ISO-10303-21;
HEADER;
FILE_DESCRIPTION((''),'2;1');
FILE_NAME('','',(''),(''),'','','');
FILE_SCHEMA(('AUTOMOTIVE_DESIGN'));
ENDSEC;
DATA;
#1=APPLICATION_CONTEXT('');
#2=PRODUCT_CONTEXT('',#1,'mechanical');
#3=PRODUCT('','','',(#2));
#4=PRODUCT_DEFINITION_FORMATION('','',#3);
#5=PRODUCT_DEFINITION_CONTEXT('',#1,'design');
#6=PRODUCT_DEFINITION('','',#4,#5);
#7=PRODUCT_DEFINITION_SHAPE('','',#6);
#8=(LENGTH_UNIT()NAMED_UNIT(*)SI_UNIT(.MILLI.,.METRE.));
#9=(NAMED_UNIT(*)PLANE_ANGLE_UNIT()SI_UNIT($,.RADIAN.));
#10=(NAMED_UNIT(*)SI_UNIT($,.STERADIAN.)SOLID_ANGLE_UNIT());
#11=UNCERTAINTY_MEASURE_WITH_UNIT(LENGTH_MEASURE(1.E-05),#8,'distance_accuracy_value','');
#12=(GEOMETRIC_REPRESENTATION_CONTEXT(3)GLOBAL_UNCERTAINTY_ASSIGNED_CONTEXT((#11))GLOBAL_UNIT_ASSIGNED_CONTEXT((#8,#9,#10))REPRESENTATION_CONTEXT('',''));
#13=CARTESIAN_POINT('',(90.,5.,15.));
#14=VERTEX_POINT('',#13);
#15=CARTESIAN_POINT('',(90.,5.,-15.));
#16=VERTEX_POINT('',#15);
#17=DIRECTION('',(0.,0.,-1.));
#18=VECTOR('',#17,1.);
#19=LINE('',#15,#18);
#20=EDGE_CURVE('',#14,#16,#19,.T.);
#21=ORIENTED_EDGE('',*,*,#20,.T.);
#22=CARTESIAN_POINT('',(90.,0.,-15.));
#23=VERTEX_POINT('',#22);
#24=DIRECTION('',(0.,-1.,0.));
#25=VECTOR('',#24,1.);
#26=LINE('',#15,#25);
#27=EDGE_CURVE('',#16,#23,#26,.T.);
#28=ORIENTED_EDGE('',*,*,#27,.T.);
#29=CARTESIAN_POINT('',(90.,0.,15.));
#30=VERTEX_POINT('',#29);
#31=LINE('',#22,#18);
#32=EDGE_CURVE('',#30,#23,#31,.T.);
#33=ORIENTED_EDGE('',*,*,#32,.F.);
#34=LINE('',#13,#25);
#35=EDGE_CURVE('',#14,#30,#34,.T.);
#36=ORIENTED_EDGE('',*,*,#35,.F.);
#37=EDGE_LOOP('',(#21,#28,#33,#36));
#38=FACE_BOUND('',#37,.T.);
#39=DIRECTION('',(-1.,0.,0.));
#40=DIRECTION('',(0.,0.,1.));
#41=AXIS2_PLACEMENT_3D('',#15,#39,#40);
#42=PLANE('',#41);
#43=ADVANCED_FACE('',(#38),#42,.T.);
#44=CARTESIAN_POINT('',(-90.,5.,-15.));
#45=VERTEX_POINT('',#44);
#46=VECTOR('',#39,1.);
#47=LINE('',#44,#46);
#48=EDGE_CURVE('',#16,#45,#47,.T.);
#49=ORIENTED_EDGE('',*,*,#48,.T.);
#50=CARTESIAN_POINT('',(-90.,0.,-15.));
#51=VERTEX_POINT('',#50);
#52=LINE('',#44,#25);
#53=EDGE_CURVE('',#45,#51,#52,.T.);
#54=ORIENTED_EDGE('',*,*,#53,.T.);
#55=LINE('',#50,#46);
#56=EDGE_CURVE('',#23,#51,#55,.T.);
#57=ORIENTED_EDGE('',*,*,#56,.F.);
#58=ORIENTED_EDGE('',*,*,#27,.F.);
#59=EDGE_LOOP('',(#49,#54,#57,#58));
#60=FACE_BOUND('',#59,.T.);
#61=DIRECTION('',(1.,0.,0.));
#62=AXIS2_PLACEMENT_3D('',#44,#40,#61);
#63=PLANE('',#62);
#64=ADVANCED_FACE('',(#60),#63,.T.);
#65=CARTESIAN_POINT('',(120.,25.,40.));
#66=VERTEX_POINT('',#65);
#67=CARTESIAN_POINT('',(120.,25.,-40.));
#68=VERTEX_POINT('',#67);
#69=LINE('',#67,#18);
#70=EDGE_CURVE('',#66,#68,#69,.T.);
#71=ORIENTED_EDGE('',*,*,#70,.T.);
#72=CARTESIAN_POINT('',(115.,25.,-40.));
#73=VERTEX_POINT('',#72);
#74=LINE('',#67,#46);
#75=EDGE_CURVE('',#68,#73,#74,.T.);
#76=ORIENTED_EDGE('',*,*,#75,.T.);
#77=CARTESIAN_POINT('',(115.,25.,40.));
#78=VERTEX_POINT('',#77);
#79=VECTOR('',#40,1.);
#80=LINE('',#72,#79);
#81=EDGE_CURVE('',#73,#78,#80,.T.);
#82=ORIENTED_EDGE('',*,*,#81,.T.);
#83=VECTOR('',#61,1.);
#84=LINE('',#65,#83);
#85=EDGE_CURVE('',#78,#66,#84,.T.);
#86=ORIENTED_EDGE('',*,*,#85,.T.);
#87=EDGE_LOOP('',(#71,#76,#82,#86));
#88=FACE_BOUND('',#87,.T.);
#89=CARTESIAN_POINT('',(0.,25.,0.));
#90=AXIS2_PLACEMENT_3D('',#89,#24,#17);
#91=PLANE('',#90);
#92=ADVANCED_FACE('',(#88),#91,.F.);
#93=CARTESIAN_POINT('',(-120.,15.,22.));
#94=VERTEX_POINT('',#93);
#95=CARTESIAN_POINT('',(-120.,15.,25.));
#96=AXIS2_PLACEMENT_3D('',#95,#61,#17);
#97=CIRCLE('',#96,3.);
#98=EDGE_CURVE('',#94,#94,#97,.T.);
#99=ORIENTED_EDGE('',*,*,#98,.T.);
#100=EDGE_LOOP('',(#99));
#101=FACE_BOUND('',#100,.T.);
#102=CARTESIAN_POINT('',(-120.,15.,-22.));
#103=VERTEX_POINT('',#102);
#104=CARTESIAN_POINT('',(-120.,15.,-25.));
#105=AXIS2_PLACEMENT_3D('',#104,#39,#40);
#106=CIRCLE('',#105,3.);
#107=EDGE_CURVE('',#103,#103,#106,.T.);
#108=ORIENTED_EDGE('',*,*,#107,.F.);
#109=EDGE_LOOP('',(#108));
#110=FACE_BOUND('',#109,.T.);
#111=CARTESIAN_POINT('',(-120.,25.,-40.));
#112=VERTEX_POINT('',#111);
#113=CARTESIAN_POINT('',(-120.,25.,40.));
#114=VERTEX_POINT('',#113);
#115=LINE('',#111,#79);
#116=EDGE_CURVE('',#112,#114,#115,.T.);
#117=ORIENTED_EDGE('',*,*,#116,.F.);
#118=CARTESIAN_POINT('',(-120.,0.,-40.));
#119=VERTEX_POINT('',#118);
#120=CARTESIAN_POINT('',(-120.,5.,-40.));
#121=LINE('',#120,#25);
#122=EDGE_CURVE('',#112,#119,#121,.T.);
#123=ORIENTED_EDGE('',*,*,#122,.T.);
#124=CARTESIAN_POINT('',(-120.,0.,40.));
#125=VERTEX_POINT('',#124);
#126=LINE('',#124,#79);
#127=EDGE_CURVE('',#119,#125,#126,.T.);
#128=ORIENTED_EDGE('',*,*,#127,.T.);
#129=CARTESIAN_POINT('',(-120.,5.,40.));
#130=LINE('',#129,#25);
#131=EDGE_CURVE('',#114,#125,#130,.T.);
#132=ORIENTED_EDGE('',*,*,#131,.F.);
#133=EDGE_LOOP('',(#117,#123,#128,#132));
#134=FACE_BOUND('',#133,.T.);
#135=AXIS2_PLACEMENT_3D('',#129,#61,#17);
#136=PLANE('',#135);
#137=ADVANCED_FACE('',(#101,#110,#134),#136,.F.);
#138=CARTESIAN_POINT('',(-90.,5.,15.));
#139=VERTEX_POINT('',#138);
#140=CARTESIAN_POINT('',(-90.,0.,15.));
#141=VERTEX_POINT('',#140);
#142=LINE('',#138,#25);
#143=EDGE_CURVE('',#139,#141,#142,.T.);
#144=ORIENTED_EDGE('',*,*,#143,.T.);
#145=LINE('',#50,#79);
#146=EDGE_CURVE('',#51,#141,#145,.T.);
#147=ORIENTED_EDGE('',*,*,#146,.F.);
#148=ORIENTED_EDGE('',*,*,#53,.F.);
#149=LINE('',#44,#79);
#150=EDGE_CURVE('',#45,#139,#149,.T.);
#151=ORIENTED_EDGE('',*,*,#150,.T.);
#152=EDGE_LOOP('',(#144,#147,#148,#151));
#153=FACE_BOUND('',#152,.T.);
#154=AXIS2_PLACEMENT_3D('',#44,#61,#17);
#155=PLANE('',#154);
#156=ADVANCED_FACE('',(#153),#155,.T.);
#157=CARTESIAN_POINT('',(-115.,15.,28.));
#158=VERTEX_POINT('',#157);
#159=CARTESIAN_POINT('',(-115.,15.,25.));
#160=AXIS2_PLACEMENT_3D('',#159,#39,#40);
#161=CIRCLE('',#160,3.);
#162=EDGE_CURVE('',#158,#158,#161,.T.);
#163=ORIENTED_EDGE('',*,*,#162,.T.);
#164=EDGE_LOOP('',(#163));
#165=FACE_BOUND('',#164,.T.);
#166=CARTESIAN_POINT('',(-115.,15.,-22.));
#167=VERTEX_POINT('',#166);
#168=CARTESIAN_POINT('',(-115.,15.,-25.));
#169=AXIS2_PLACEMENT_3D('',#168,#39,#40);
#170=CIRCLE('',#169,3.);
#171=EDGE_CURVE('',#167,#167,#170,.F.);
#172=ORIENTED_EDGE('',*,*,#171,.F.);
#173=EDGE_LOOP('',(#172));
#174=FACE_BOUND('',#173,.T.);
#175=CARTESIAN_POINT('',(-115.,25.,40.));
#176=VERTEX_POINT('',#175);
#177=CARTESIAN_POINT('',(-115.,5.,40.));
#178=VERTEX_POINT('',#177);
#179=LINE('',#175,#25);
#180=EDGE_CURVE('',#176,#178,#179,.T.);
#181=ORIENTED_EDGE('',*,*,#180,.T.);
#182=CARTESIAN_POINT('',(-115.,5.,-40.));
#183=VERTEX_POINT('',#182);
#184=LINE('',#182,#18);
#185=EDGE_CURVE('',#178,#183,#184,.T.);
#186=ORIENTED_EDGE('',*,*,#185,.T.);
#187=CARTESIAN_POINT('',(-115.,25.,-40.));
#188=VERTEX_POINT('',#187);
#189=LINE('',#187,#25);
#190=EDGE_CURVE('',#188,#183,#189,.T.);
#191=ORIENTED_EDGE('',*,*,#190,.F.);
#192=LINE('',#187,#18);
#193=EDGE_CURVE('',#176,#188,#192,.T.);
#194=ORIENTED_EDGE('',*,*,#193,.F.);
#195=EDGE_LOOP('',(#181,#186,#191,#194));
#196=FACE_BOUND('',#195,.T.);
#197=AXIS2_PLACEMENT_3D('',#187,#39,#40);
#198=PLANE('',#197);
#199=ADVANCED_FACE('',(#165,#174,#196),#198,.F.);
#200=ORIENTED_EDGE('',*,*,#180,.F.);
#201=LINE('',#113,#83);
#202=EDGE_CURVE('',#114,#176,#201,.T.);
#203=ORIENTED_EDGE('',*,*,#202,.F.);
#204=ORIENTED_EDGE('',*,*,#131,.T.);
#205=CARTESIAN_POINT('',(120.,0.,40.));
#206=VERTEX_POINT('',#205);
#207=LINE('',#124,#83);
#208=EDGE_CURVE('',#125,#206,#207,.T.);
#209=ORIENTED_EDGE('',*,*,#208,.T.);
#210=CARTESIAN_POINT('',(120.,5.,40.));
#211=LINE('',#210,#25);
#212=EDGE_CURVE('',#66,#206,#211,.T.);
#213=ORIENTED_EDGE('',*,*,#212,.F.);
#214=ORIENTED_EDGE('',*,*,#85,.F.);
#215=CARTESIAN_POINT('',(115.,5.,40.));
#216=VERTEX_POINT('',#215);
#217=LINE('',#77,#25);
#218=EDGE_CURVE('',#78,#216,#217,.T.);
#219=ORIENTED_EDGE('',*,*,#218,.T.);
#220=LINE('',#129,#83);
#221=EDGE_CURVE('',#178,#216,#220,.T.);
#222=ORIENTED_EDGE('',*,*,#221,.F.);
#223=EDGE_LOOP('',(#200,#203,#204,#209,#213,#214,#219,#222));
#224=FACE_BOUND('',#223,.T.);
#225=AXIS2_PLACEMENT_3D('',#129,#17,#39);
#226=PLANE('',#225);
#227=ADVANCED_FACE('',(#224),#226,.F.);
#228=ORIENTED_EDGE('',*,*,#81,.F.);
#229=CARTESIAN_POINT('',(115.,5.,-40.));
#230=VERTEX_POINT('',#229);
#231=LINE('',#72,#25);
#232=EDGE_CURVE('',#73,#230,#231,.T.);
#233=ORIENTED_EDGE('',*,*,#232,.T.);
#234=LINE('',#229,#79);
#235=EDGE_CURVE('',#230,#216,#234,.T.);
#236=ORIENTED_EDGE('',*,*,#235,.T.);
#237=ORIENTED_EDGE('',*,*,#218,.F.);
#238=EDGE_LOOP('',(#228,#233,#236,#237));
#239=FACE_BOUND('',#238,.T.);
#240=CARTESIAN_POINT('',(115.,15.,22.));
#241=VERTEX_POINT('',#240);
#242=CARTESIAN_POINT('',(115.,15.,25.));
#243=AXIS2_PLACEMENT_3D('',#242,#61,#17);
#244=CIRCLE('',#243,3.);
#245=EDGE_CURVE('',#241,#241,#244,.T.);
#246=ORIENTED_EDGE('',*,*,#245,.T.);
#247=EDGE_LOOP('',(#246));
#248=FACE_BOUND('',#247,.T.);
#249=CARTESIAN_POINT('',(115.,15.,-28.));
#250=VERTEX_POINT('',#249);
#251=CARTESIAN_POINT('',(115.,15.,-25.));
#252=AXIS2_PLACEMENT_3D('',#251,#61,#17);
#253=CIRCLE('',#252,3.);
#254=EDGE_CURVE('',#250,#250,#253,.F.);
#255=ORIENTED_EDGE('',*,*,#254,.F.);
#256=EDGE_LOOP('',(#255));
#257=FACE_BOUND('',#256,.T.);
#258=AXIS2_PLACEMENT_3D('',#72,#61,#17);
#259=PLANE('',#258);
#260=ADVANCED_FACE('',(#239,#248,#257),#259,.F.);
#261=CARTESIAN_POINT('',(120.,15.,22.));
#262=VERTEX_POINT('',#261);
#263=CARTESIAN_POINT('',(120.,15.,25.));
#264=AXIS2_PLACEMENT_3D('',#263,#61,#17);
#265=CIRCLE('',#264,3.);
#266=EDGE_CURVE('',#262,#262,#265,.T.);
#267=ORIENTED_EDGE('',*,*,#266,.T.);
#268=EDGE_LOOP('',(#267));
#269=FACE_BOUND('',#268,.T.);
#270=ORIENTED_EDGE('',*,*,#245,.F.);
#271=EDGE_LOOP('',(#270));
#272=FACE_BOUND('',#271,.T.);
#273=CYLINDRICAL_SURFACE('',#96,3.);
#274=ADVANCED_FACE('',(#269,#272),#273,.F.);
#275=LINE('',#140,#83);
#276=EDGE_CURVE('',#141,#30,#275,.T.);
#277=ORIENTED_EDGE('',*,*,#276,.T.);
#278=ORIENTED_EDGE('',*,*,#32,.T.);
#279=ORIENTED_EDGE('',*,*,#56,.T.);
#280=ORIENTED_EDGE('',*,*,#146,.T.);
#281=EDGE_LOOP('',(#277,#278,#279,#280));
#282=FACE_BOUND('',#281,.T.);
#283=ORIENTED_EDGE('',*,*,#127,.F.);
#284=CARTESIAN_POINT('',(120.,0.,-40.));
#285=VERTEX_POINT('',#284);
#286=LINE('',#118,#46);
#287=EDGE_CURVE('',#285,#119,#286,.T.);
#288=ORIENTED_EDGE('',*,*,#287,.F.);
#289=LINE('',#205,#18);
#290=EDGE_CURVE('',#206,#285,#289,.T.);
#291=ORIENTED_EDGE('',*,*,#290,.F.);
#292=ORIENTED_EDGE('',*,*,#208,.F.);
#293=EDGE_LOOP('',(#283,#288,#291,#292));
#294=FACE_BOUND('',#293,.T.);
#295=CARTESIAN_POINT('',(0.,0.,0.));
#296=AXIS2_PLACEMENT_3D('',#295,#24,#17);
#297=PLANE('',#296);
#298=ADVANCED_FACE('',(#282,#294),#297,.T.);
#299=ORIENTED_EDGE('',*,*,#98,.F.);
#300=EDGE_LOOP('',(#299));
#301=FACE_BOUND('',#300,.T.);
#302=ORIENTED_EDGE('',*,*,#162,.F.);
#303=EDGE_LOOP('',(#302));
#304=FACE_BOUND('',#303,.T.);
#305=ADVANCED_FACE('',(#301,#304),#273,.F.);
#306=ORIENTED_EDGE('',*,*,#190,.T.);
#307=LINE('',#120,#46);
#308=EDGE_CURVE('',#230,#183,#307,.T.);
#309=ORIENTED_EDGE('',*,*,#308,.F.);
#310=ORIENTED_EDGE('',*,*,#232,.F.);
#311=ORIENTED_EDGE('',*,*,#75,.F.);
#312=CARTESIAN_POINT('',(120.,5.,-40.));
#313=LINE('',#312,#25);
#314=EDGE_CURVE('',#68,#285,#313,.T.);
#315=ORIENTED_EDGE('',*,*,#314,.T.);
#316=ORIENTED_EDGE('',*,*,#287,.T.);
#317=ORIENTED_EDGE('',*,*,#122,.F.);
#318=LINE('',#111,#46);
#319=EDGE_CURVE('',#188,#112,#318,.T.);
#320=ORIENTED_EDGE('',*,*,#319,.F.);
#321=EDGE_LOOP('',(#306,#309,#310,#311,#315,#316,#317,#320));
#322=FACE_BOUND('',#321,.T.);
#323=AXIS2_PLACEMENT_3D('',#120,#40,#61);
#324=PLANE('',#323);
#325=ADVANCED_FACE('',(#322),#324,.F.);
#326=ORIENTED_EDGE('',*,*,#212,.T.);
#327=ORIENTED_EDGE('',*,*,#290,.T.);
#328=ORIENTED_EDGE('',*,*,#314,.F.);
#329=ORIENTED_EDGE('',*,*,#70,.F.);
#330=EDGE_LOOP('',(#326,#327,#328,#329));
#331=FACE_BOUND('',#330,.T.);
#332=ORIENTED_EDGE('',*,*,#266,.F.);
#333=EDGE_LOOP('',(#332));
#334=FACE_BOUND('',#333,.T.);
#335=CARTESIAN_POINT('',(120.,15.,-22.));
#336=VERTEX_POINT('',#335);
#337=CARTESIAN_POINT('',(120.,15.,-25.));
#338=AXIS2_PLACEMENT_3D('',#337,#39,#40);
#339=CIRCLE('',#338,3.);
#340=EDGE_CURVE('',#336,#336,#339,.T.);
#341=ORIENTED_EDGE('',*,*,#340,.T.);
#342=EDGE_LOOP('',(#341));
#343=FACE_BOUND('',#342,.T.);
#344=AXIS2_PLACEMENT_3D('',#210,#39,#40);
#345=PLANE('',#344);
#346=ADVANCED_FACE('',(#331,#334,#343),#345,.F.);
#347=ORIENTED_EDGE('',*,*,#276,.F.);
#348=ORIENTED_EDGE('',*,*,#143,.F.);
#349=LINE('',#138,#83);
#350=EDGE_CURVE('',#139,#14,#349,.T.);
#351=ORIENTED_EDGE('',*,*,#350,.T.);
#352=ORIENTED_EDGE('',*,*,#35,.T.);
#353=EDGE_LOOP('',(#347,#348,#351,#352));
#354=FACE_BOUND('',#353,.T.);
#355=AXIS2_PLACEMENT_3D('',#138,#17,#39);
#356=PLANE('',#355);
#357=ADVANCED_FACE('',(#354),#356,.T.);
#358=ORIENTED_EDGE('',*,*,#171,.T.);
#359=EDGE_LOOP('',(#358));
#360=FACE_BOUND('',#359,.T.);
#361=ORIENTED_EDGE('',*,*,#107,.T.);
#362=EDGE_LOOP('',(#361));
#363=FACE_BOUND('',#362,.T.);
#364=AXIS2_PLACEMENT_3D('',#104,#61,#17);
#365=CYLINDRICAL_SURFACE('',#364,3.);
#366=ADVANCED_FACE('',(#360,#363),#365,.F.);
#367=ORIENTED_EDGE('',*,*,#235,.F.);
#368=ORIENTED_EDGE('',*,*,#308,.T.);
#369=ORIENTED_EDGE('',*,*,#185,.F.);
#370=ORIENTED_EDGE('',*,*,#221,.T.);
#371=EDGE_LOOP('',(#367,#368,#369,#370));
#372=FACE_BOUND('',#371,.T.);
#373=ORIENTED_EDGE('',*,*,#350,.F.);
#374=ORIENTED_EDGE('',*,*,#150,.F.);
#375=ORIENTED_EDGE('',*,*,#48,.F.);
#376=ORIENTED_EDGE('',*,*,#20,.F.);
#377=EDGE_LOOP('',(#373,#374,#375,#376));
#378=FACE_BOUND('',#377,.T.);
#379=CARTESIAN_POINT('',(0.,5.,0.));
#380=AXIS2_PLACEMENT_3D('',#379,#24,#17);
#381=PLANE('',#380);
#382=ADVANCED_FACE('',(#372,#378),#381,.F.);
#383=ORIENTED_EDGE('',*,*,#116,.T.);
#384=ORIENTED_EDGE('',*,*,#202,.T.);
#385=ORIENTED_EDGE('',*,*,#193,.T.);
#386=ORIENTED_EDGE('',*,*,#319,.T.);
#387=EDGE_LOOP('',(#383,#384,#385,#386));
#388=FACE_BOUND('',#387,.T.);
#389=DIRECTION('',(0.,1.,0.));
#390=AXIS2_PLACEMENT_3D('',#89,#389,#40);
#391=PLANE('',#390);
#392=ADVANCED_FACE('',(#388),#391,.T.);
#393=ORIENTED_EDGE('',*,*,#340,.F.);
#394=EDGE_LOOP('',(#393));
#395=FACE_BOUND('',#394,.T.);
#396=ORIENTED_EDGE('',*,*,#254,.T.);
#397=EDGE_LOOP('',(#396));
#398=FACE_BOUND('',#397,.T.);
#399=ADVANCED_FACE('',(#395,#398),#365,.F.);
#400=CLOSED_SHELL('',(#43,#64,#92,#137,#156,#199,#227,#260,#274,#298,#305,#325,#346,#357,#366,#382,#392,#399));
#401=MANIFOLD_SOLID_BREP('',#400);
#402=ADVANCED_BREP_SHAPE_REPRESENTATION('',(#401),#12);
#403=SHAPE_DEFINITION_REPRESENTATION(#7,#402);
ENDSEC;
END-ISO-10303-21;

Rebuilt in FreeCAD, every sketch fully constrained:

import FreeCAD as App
import Part
import Sketcher
Q = App.Units.Quantity


def add_polygon(sketch, points):
    """Adds a closed chain of lines whose ends are joined by coincident constraints."""
    first, n = sketch.GeometryCount, len(points)
    for a, b in zip(points, points[1:] + points[:1]):
        sketch.addGeometry(Part.LineSegment(App.Vector(*a, 0), App.Vector(*b, 0)), False)
    for i in range(n):
        sketch.addConstraint(Sketcher.Constraint("Coincident", first + i, 2, first + (i + 1) % n, 1))

doc = App.newDocument("Part")
body = doc.addObject("PartDesign::Body", "Body")

sketch1 = body.newObject("Sketcher::SketchObject", "Sketch")
sketch1.AttachmentSupport = (doc.getObject("XZ_Plane"), [""])
sketch1.MapMode = "FlatFace"
add_polygon(sketch1, [(-120, -40), (-120, 40), (120, 40), (120, -40)])
add_polygon(sketch1, [(90, 15), (-90, 15), (-90, -15), (90, -15)])
sketch1.addConstraint([
    Sketcher.Constraint("Vertical", 0),
    Sketcher.Constraint("Horizontal", 1),
    Sketcher.Constraint("Vertical", 2),
    Sketcher.Constraint("Horizontal", 3),
    Sketcher.Constraint("Horizontal", 4),
    Sketcher.Constraint("Vertical", 5),
    Sketcher.Constraint("Horizontal", 6),
    Sketcher.Constraint("Vertical", 7),
    Sketcher.Constraint("Symmetric", 0, 2, 2, 2, -1, 1),
    Sketcher.Constraint("Symmetric", 4, 2, 6, 2, -1, 1),
    Sketcher.Constraint("DistanceX", 1, 1, 1, 2, Q("240 mm")),
    Sketcher.Constraint("DistanceX", 4, 2, 4, 1, Q("180 mm")),
    Sketcher.Constraint("DistanceY", 0, 1, 0, 2, Q("80 mm")),
    Sketcher.Constraint("DistanceY", 5, 2, 5, 1, Q("30 mm")),
])
pad1 = body.newObject("PartDesign::Pad", "Pad")
pad1.Profile = sketch1
pad1.Length = 5
pad1.Reversed = True

sketch2 = body.newObject("Sketcher::SketchObject", "Sketch001")
sketch2.AttachmentSupport = (doc.getObject("XZ_Plane"), [""])
sketch2.MapMode = "FlatFace"
sketch2.AttachmentOffset = App.Placement(App.Vector(0, 0, -5), App.Rotation())
add_polygon(sketch2, [(115, -40), (115, 40), (120, 40), (120, -40)])
sketch2.addConstraint([
    Sketcher.Constraint("Vertical", 0),
    Sketcher.Constraint("Horizontal", 1),
    Sketcher.Constraint("Vertical", 2),
    Sketcher.Constraint("Horizontal", 3),
    Sketcher.Constraint("DistanceX", 1, 1, 1, 2, Q("5 mm")),
    Sketcher.Constraint("DistanceY", 0, 1, 0, 2, Q("80 mm")),
    Sketcher.Constraint("DistanceX", -1, 1, 0, 2, Q("115 mm")),
    Sketcher.Constraint("DistanceY", -1, 1, 0, 2, Q("40 mm")),
])
pad2 = body.newObject("PartDesign::Pad", "Pad001")
pad2.Profile = sketch2
pad2.Length = 20
pad2.Reversed = True

sketch3 = body.newObject("Sketcher::SketchObject", "Sketch002")
sketch3.AttachmentSupport = (doc.getObject("XZ_Plane"), [""])
sketch3.MapMode = "FlatFace"
sketch3.AttachmentOffset = App.Placement(App.Vector(0, 0, -5), App.Rotation())
add_polygon(sketch3, [(-120, -40), (-120, 40), (-115, 40), (-115, -40)])
sketch3.addConstraint([
    Sketcher.Constraint("Vertical", 0),
    Sketcher.Constraint("Horizontal", 1),
    Sketcher.Constraint("Vertical", 2),
    Sketcher.Constraint("Horizontal", 3),
    Sketcher.Constraint("DistanceX", 1, 1, 1, 2, Q("5 mm")),
    Sketcher.Constraint("DistanceY", 0, 1, 0, 2, Q("80 mm")),
    Sketcher.Constraint("DistanceX", 0, 2, -1, 1, Q("120 mm")),
    Sketcher.Constraint("DistanceY", -1, 1, 0, 2, Q("40 mm")),
])
pad3 = body.newObject("PartDesign::Pad", "Pad002")
pad3.Profile = sketch3
pad3.Length = 20
pad3.Reversed = True

sketch4 = body.newObject("Sketcher::SketchObject", "Sketch003")
sketch4.AttachmentSupport = (doc.getObject("YZ_Plane"), [""])
sketch4.MapMode = "FlatFace"
sketch4.AttachmentOffset = App.Placement(App.Vector(0, 0, 120), App.Rotation())
sketch4.addGeometry([
    Part.Circle(App.Vector(15, 25, 0), App.Vector(0, 0, 1), 3),
    Part.Circle(App.Vector(15, -25, 0), App.Vector(0, 0, 1), 3),
], False)
sketch4.addConstraint([
    Sketcher.Constraint("Equal", 0, 1),
    Sketcher.Constraint("Symmetric", 0, 3, 1, 3, -1),
    Sketcher.Constraint("Diameter", 0, Q("6 mm")),
    Sketcher.Constraint("DistanceX", -1, 1, 0, 3, Q("15 mm")),
    Sketcher.Constraint("DistanceY", -1, 1, 0, 3, Q("25 mm")),
])
pocket1 = body.newObject("PartDesign::Pocket", "Pocket")
pocket1.Profile = sketch4
pocket1.Type = "ThroughAll"

doc.recompute()
